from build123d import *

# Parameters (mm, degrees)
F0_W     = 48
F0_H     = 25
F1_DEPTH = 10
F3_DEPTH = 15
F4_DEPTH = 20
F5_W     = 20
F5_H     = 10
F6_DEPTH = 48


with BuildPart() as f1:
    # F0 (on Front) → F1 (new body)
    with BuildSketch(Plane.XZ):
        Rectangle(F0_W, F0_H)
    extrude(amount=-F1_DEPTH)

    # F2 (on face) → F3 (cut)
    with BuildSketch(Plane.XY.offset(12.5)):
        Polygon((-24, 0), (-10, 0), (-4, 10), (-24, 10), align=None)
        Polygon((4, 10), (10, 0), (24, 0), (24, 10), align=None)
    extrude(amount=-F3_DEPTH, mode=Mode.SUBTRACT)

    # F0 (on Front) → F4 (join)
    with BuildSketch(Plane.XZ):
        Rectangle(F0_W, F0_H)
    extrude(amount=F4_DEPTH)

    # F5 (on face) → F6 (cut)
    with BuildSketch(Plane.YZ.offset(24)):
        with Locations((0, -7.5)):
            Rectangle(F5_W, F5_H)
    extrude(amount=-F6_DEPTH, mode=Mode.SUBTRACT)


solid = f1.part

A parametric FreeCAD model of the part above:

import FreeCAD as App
import Part
import Sketcher

V = App.Vector


def add_polygon(sketch, points):
    """Adds a closed chain of lines whose ends are joined by coincident constraints."""
    first, n = sketch.GeometryCount, len(points)
    for a, b in zip(points, points[1:] + points[:1]):
        sketch.addGeometry(Part.LineSegment(App.Vector(*a, 0), App.Vector(*b, 0)), False)
    for i in range(n):
        sketch.addConstraint(Sketcher.Constraint("Coincident", first + i, 2, first + (i + 1) % n, 1))

doc = App.newDocument("Part")
body = doc.addObject("PartDesign::Body", "Body")

# Sketch on XZ plane
sketch1 = doc.addObject("Sketcher::SketchObject", "Sketch")
body.addObject(sketch1)
sketch1.AttachmentSupport = (doc.XZ_Plane, [""])
sketch1.MapMode = "FlatFace"
add_polygon(sketch1, [(-24, 12), (-24, -12), (24, -12), (24, 12)])  # lines 0-3
sketch1.addConstraint([
    Sketcher.Constraint("Vertical", 0),
    Sketcher.Constraint("Horizontal", 1),
    Sketcher.Constraint("Vertical", 2),
    Sketcher.Constraint("Horizontal", 3),
    Sketcher.Constraint("Symmetric", 0, 2, 2, 2, -1, 1),
    Sketcher.Constraint("DistanceX", 1, 1, 1, 2, 48.0),
    Sketcher.Constraint("DistanceY", 0, 2, 0, 1, 25.0),
])
pad1 = doc.addObject("PartDesign::Pad", "Pad")
body.addObject(pad1)
pad1.Profile = sketch1
pad1.Length = 10
pad1.Reversed = True

# Sketch on XY plane
sketch2 = doc.addObject("Sketcher::SketchObject", "Sketch001")
body.addObject(sketch2)
sketch2.AttachmentSupport = (doc.XY_Plane, [""])
sketch2.MapMode = "FlatFace"
sketch2.AttachmentOffset = App.Placement(V(0, 0, 12.5), App.Rotation())
add_polygon(sketch2, [(-24, 0), (-10, 0), (-4, 10), (-24, 10)])  # lines 0-3
add_polygon(sketch2, [(4, 10), (10, 0), (24, 0), (24, 10)])  # lines 4-7
sketch2.addConstraint([
    Sketcher.Constraint("Horizontal", 0),
    Sketcher.Constraint("Horizontal", 2),
    Sketcher.Constraint("Vertical", 3),
    Sketcher.Constraint("Horizontal", 5),
    Sketcher.Constraint("Vertical", 6),
    Sketcher.Constraint("Horizontal", 7),
    Sketcher.Constraint("Symmetric", 0, 2, 4, 2, -1, 1),
    Sketcher.Constraint("Symmetric", 3, 2, 5, 2, -2),
    Sketcher.Constraint("Symmetric", 1, 2, 7, 2, -2),
    Sketcher.Constraint("DistanceX", 0, 1, 0, 2, 14.0),
    Sketcher.Constraint("DistanceX", 2, 2, 2, 1, 20.0),
    Sketcher.Constraint("DistanceY", 3, 2, 3, 1, 10.0),
    Sketcher.Constraint("DistanceX", 0, 2, -1, 1, 10.0),
])
pocket1 = doc.addObject("PartDesign::Pocket", "Pocket")
body.addObject(pocket1)
pocket1.Profile = sketch2
pocket1.Length = 15

# Sketch on XZ plane
sketch3 = doc.addObject("Sketcher::SketchObject", "Sketch002")
body.addObject(sketch3)
sketch3.AttachmentSupport = (doc.XZ_Plane, [""])
sketch3.MapMode = "FlatFace"
add_polygon(sketch3, [(-24, 12), (-24, -12), (24, -12), (24, 12)])  # lines 0-3
sketch3.addConstraint([
    Sketcher.Constraint("Vertical", 0),
    Sketcher.Constraint("Horizontal", 1),
    Sketcher.Constraint("Vertical", 2),
    Sketcher.Constraint("Horizontal", 3),
    Sketcher.Constraint("Symmetric", 0, 2, 2, 2, -1, 1),
    Sketcher.Constraint("DistanceX", 1, 1, 1, 2, 48.0),
    Sketcher.Constraint("DistanceY", 0, 2, 0, 1, 25.0),
])
pad2 = doc.addObject("PartDesign::Pad", "Pad001")
body.addObject(pad2)
pad2.Profile = sketch3
pad2.Length = 20

# Sketch on YZ plane
sketch4 = doc.addObject("Sketcher::SketchObject", "Sketch003")
body.addObject(sketch4)
sketch4.AttachmentSupport = (doc.YZ_Plane, [""])
sketch4.MapMode = "FlatFace"
sketch4.AttachmentOffset = App.Placement(V(0, 0, 24), App.Rotation())
add_polygon(sketch4, [(-10, -2), (-10, -12), (10, -12), (10, -2)])  # lines 0-3
sketch4.addConstraint([
    Sketcher.Constraint("Vertical", 0),
    Sketcher.Constraint("Horizontal", 1),
    Sketcher.Constraint("Vertical", 2),
    Sketcher.Constraint("Horizontal", 3),
    Sketcher.Constraint("DistanceX", 1, 1, 1, 2, 20.0),
    Sketcher.Constraint("DistanceY", 0, 2, 0, 1, 10.0),
    Sketcher.Constraint("DistanceX", 0, 2, -1, 1, 10.0),
    Sketcher.Constraint("DistanceY", 0, 2, -1, 1, 12.5),
])
pocket2 = doc.addObject("PartDesign::Pocket", "Pocket001")
body.addObject(pocket2)
pocket2.Profile = sketch4
pocket2.Length = 48

doc.recompute()
